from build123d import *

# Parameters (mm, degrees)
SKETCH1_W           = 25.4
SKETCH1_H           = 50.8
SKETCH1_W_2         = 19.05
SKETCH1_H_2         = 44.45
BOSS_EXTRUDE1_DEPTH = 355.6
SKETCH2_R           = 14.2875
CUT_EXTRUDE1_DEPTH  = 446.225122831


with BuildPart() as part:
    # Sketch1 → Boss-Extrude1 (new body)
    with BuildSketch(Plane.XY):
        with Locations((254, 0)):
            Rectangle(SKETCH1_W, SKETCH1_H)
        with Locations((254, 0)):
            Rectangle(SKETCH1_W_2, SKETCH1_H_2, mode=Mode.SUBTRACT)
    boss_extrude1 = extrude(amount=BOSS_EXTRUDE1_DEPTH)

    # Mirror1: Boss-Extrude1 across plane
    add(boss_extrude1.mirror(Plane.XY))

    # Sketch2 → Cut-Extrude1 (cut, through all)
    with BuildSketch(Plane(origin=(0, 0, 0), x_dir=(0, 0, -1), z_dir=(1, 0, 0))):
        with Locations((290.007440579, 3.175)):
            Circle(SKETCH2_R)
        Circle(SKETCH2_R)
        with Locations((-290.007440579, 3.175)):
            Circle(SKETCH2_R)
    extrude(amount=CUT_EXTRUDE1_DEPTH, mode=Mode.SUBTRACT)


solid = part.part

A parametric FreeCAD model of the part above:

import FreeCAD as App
import Part
import Sketcher

V = App.Vector
Q = App.Units.Quantity


def add_polygon(sketch, points):
    """Adds a closed chain of lines whose ends are joined by coincident constraints."""
    first, n = sketch.GeometryCount, len(points)
    for a, b in zip(points, points[1:] + points[:1]):
        sketch.addGeometry(Part.LineSegment(App.Vector(*a, 0), App.Vector(*b, 0)), False)
    for i in range(n):
        sketch.addConstraint(Sketcher.Constraint("Coincident", first + i, 2, first + (i + 1) % n, 1))

doc = App.newDocument("Part")
body = doc.addObject("PartDesign::Body", "Body")

# Sketch on XY plane
sketch1 = doc.addObject("Sketcher::SketchObject", "Sketch")
body.addObject(sketch1)
sketch1.AttachmentSupport = (doc.XY_Plane, [""])
sketch1.MapMode = "FlatFace"
add_polygon(sketch1, [(241, 25), (241, -25), (267, -25), (267, 25)])  # lines 0-3
add_polygon(sketch1, [(264, -22), (244, -22), (244, 22), (264, 22)])  # lines 4-7
sketch1.addConstraint([
    Sketcher.Constraint("Vertical", 0),
    Sketcher.Constraint("Horizontal", 1),
    Sketcher.Constraint("Vertical", 2),
    Sketcher.Constraint("Horizontal", 3),
    Sketcher.Constraint("Horizontal", 4),
    Sketcher.Constraint("Vertical", 5),
    Sketcher.Constraint("Horizontal", 6),
    Sketcher.Constraint("Vertical", 7),
    Sketcher.Constraint("DistanceX", 1, 1, 1, 2, Q("1 in")),
    Sketcher.Constraint("DistanceY", 0, 2, 0, 1, Q("2 in")),
    Sketcher.Constraint("DistanceY", 0, 2, -1, 1, Q("1 in")),
    Sketcher.Constraint("DistanceX", 4, 2, 4, 1, Q("0.75 in")),
    Sketcher.Constraint("DistanceY", 5, 1, 5, 2, Q("1.75 in")),
    Sketcher.Constraint("DistanceX", -1, 1, 0, 2, Q("9.5 in")),
    Sketcher.Constraint("DistanceX", -1, 1, 4, 2, Q("9.625 in")),
    Sketcher.Constraint("DistanceY", 4, 2, -1, 1, Q("0.875 in")),
])
pad1 = doc.addObject("PartDesign::Pad", "Pad")
body.addObject(pad1)
pad1.Profile = sketch1
pad1.Length = Q("14 in")
doc.recompute()

mirrored = doc.addObject("PartDesign::Mirrored", "Mirrored")
body.addObject(mirrored)
mirrored.Originals = [pad1]
mirrored.MirrorPlane = (doc.XY_Plane, [""])
body.Tip = mirrored

# Sketch on YZ plane
sketch2 = doc.addObject("Sketcher::SketchObject", "Sketch001")
body.addObject(sketch2)
sketch2.AttachmentSupport = (doc.YZ_Plane, [""])
sketch2.MapMode = "FlatFace"
sketch2.addGeometry([
    Part.Circle(V(3, -290, 0), V(0, 0, 1), 14),
    Part.Circle(V(0, 0, 0), V(0, 0, 1), 14),
    Part.Circle(V(3, 290, 0), V(0, 0, 1), 14),
], False)
sketch2.addConstraint([
    Sketcher.Constraint("Coincident", 1, 3, -1, 1),
    Sketcher.Constraint("Equal", 0, 1),
    Sketcher.Constraint("Equal", 1, 2),
    Sketcher.Constraint("Symmetric", 0, 3, 2, 3, -1),
    Sketcher.Constraint("Diameter", 0, Q("1.125 in")),
    Sketcher.Constraint("DistanceX", -1, 1, 0, 3, Q("0.125 in")),
    Sketcher.Constraint("DistanceY", 0, 3, -1, 1, Q("290.007441 mm")),
])
pocket1 = doc.addObject("PartDesign::Pocket", "Pocket")
body.addObject(pocket1)
pocket1.Profile = sketch2
pocket1.Type = "ThroughAll"
pocket1.Reversed = True

doc.recompute()
